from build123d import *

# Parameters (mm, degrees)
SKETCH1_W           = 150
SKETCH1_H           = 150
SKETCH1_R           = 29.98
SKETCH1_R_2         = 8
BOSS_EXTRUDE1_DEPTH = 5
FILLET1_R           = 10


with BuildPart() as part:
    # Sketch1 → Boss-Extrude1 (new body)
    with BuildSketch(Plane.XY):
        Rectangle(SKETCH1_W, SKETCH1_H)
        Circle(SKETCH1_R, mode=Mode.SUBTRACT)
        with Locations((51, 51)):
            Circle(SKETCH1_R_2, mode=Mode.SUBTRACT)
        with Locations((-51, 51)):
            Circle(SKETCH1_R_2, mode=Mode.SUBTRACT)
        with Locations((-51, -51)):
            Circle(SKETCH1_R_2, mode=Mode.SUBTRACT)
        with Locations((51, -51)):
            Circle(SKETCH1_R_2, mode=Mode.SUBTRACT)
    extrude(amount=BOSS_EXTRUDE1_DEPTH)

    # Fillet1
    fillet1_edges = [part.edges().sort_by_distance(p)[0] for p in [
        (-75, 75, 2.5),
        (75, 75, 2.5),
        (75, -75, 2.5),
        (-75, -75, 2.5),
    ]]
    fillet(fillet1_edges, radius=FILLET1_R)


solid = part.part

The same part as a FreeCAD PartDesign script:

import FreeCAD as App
import Part
import Sketcher

V = App.Vector
Q = App.Units.Quantity


def edges_at(feature, points):
    """Names of the edges that pass closest to the given points."""
    edges = feature.Shape.Edges
    near = lambda p: min(range(len(edges)), key=lambda i: edges[i].distToShape(Part.Vertex(*p))[0])
    return sorted({f"Edge{near(p) + 1}" for p in points})

doc = App.newDocument("Part")
body = doc.addObject("PartDesign::Body", "Body")

# Sketch on XY plane
sketch1 = body.newObject("Sketcher::SketchObject", "Sketch")
sketch1.AttachmentSupport = (doc.getObject("XY_Plane"), [""])
sketch1.MapMode = "FlatFace"
sketch1.addGeometry([
    Part.LineSegment(V(-75, 75, 0), V(-75, -75, 0)),  # 0
    Part.LineSegment(V(-75, -75, 0), V(75, -75, 0)),  # 1
    Part.LineSegment(V(75, -75, 0), V(75, 75, 0)),  # 2
    Part.LineSegment(V(75, 75, 0), V(-75, 75, 0)),  # 3
    Part.Circle(V(-51, -51, 0), V(0, 0, 1), 8),  # 4
    Part.Circle(V(51, -51, 0), V(0, 0, 1), 8),  # 5
    Part.Circle(V(-51, 51, 0), V(0, 0, 1), 8),  # 6
    Part.Circle(V(0, 0, 0), V(0, 0, 1), 30),  # 7
    Part.Circle(V(51, 51, 0), V(0, 0, 1), 8),  # 8
], False)
sketch1.addConstraint([
    Sketcher.Constraint("Coincident", 0, 2, 1, 1),
    Sketcher.Constraint("Coincident", 1, 2, 2, 1),
    Sketcher.Constraint("Coincident", 2, 2, 3, 1),
    Sketcher.Constraint("Coincident", 3, 2, 0, 1),
    Sketcher.Constraint("Vertical", 0),
    Sketcher.Constraint("Horizontal", 1),
    Sketcher.Constraint("Vertical", 2),
    Sketcher.Constraint("Horizontal", 3),
    Sketcher.Constraint("Coincident", 7, 3, -1, 1),
    Sketcher.Constraint("Equal", 4, 5),
    Sketcher.Constraint("Equal", 5, 6),
    Sketcher.Constraint("Equal", 6, 8),
    Sketcher.Constraint("Symmetric", 5, 3, 6, 3, -1, 1),
    Sketcher.Constraint("Symmetric", 4, 3, 8, 3, -1, 1),
    Sketcher.Constraint("Symmetric", 0, 2, 2, 2, -1, 1),
    Sketcher.Constraint("Symmetric", 4, 3, 5, 3, -2),
    Sketcher.Constraint("Equal", 3, 0),
    Sketcher.Constraint("Diameter", 4, Q("16 mm")),
    Sketcher.Constraint("Diameter", 7, Q("59.96 mm")),
    Sketcher.Constraint("DistanceX", 1, 1, 1, 2, Q("150 mm")),
    Sketcher.Constraint("DistanceX", 4, 3, -1, 1, Q("51 mm")),
    Sketcher.Constraint("DistanceY", 4, 3, -1, 1, Q("51 mm")),
])
pad1 = body.newObject("PartDesign::Pad", "Pad")
pad1.Profile = sketch1
pad1.Length = 5
doc.recompute()

fillet = body.newObject("PartDesign::Fillet", "Fillet")
fillet.Base = (pad1, edges_at(pad1, [
    (-75, 75, 2.5),
    (75, 75, 2.5),
    (75, -75, 2.5),
    (-75, -75, 2.5),
]))
fillet.Radius = 10

doc.recompute()
